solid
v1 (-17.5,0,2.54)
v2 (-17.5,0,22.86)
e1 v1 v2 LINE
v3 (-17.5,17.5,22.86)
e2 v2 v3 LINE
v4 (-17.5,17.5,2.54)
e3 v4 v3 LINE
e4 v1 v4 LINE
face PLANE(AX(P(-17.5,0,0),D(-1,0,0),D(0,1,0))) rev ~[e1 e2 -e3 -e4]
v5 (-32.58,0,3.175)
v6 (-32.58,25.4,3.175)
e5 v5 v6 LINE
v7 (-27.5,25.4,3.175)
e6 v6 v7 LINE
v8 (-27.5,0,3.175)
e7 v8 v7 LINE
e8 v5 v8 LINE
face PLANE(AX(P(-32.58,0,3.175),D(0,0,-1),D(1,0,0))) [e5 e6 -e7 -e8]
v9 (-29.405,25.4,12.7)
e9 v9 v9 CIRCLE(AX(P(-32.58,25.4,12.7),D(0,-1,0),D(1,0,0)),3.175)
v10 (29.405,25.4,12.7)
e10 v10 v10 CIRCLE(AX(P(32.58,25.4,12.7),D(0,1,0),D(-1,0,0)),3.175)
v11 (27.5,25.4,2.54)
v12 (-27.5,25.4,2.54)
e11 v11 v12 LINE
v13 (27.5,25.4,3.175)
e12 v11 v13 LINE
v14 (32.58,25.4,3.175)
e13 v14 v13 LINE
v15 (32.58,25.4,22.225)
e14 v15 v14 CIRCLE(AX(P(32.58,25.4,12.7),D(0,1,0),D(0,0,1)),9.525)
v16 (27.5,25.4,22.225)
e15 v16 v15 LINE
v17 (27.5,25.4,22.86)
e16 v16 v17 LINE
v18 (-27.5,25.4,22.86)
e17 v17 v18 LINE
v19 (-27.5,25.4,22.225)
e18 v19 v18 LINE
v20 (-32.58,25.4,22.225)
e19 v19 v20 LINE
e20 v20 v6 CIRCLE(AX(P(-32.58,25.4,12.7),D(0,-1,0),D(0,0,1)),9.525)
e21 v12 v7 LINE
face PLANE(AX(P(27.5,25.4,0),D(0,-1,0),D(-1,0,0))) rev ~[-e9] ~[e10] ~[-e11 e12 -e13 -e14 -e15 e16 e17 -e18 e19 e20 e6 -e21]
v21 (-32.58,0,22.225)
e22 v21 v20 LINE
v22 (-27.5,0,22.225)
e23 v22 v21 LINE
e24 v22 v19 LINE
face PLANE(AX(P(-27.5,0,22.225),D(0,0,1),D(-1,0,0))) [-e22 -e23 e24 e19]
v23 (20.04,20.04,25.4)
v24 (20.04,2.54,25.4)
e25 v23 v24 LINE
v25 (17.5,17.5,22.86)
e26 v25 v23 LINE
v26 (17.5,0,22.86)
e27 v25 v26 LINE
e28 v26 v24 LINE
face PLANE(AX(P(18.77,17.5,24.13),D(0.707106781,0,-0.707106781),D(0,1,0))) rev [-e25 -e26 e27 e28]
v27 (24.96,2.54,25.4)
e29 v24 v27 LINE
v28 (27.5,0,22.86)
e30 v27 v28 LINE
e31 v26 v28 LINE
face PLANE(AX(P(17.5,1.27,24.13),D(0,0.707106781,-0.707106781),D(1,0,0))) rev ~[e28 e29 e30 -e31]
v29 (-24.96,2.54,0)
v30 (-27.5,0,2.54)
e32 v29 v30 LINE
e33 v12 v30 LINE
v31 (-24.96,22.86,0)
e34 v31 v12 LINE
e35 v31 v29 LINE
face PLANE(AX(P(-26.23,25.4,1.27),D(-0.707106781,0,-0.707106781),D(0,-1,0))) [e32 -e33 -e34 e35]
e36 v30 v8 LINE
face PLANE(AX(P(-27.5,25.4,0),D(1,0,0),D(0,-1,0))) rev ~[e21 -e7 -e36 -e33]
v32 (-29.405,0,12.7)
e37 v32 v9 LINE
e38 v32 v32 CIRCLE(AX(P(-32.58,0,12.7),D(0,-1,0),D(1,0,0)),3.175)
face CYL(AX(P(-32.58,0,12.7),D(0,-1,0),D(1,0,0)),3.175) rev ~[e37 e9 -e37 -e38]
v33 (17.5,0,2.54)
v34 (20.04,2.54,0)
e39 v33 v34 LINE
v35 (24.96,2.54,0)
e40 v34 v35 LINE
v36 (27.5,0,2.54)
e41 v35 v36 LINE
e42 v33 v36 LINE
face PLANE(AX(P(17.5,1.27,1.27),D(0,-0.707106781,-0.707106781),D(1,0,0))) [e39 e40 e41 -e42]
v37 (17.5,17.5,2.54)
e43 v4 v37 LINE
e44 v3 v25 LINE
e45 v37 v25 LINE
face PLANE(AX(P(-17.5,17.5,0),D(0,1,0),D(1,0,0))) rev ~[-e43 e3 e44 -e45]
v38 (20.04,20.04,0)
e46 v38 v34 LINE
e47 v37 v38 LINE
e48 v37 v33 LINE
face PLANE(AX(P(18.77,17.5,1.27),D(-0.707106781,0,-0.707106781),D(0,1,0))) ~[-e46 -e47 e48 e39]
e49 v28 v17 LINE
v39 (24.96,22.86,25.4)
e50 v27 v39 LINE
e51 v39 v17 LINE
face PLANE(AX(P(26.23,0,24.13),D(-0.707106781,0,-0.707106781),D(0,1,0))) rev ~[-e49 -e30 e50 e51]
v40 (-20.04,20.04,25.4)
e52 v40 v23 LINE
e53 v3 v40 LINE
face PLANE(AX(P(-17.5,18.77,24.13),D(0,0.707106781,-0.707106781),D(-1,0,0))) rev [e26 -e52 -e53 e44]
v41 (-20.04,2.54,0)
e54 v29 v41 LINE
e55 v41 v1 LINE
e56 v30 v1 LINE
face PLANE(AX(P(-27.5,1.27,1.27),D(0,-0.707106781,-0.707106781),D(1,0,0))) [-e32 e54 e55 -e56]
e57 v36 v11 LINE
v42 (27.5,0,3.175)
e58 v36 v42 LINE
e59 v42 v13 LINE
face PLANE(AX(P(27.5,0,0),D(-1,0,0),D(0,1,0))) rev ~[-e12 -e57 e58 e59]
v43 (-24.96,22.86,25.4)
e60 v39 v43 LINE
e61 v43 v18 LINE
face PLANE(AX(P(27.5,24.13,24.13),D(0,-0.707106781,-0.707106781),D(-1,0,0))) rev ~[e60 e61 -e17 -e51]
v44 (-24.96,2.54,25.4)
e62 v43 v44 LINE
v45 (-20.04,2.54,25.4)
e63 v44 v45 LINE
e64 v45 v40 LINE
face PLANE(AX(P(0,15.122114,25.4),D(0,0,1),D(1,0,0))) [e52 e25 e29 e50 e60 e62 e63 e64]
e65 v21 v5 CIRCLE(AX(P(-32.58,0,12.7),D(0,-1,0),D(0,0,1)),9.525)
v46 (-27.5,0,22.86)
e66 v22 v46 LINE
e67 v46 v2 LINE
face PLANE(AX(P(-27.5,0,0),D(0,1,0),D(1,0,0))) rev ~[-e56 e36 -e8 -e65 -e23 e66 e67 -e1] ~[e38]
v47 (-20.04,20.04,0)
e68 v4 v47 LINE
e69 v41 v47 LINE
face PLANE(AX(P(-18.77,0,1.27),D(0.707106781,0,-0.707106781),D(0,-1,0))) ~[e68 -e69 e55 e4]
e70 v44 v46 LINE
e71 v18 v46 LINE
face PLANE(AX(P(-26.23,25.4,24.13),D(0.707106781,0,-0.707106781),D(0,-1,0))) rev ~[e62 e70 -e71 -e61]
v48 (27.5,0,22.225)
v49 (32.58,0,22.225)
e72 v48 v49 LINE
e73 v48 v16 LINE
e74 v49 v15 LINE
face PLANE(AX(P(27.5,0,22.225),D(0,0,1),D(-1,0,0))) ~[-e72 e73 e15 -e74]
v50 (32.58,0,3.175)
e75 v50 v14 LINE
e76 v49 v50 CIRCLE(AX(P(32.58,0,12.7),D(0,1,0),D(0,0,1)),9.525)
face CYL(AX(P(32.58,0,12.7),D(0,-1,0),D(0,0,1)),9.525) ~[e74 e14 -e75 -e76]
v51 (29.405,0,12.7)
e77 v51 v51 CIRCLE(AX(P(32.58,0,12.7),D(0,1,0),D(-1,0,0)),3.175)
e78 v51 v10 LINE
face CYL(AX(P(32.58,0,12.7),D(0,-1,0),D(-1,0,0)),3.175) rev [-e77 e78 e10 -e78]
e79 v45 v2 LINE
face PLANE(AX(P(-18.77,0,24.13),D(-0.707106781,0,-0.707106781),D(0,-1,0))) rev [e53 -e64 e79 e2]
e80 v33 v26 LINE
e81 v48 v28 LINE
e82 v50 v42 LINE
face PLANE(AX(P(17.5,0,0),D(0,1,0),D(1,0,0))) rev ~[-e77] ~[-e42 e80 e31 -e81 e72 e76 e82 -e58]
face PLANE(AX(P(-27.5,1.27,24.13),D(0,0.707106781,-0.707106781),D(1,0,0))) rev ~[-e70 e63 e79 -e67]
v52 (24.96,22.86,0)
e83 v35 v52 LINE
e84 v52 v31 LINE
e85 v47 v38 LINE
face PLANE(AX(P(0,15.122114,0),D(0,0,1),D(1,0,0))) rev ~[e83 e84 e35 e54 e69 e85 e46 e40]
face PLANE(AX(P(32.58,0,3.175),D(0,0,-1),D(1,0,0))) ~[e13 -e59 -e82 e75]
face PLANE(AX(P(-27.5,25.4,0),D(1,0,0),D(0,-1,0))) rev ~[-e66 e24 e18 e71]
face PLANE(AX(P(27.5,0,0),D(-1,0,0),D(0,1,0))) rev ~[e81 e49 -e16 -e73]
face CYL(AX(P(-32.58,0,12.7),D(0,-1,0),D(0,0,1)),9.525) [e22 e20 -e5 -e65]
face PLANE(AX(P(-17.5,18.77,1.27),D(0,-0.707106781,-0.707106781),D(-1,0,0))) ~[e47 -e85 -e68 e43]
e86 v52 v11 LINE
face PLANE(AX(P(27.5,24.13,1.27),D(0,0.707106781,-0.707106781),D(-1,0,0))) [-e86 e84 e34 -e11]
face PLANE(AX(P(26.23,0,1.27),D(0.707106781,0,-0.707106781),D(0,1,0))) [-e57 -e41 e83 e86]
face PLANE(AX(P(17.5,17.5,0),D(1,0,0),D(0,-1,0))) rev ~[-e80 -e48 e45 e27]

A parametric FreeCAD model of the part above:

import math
import FreeCAD as App
import Part
import Sketcher

V = App.Vector
Q = App.Units.Quantity


def edges_at(feature, points):
    """Names of the edges that pass closest to the given points."""
    edges = feature.Shape.Edges
    near = lambda p: min(range(len(edges)), key=lambda i: edges[i].distToShape(Part.Vertex(*p))[0])
    return sorted({f"Edge{near(p) + 1}" for p in points})

doc = App.newDocument("Part")
body = doc.addObject("PartDesign::Body", "Body")

# Sketch on XY plane
sketch1 = body.newObject("Sketcher::SketchObject", "Sketch")
sketch1.AttachmentSupport = (doc.getObject("XY_Plane"), [""])
sketch1.MapMode = "FlatFace"
sketch1.addGeometry([
    Part.LineSegment(V(-18, 18, 0), V(18, 18, 0)),  # 0
    Part.LineSegment(V(18, 18, 0), V(18, 0, 0)),  # 1
    Part.LineSegment(V(18, 0, 0), V(28, 0, 0)),  # 2
    Part.LineSegment(V(28, 0, 0), V(28, 25, 0)),  # 3
    Part.LineSegment(V(28, 25, 0), V(-28, 25, 0)),  # 4
    Part.LineSegment(V(-28, 25, 0), V(-28, 0, 0)),  # 5
    Part.LineSegment(V(-28, 0, 0), V(-18, 0, 0)),  # 6
    Part.LineSegment(V(-18, 0, 0), V(-18, 18, 0)),  # 7
], False)
sketch1.addConstraint([
    Sketcher.Constraint("Coincident", 0, 2, 1, 1),
    Sketcher.Constraint("Coincident", 1, 2, 2, 1),
    Sketcher.Constraint("Coincident", 2, 2, 3, 1),
    Sketcher.Constraint("Coincident", 3, 2, 4, 1),
    Sketcher.Constraint("Coincident", 4, 2, 5, 1),
    Sketcher.Constraint("Coincident", 5, 2, 6, 1),
    Sketcher.Constraint("Coincident", 6, 2, 7, 1),
    Sketcher.Constraint("Coincident", 7, 2, 0, 1),
    Sketcher.Constraint("Horizontal", 0),
    Sketcher.Constraint("Vertical", 1),
    Sketcher.Constraint("Horizontal", 2),
    Sketcher.Constraint("Vertical", 3),
    Sketcher.Constraint("Horizontal", 4),
    Sketcher.Constraint("Vertical", 5),
    Sketcher.Constraint("Horizontal", 6),
    Sketcher.Constraint("Vertical", 7),
    Sketcher.Constraint("Symmetric", 2, 2, 5, 2, -1, 1),
    Sketcher.Constraint("Symmetric", 1, 2, 6, 2, -2),
    Sketcher.Constraint("DistanceY", 3, 1, 3, 2, Q("1 in")),
    Sketcher.Constraint("DistanceX", 0, 1, 0, 2, Q("35 mm")),
    Sketcher.Constraint("DistanceX", 2, 1, 2, 2, Q("10 mm")),
    Sketcher.Constraint("DistanceY", 1, 2, 1, 1, Q("17.5 mm")),
])
pad1 = body.newObject("PartDesign::Pad", "Pad")
pad1.Profile = sketch1
pad1.Length = Q("1 in")

# Sketch on XZ plane
sketch2 = body.newObject("Sketcher::SketchObject", "Sketch001")
sketch2.AttachmentSupport = (doc.getObject("XZ_Plane"), [""])
sketch2.MapMode = "FlatFace"
sketch2.addGeometry([
    Part.LineSegment(V(-27.5, 3.2, 0), V(-27.5, 22.2, 0)),  # 0
    Part.LineSegment(V(-27.5, 22.2, 0), V(-32.6, 22.2, 0)),  # 1
    Part.ArcOfCircle(Part.Circle(V(-32.6, 12.7, 0), V(0, 0, 1), 9.5), math.radians(90), math.radians(270)),  # 2
    Part.LineSegment(V(-32.6, 3.2, 0), V(-27.5, 3.2, 0)),  # 3
    Part.Circle(V(-32.6, 12.7, 0), V(0, 0, 1), 3.2),  # 4
], False)
sketch2.addConstraint([
    Sketcher.Constraint("Coincident", 0, 2, 1, 1),
    Sketcher.Constraint("Tangent", 1, 2, 2, 1),
    Sketcher.Constraint("Tangent", 2, 2, 3, 1),
    Sketcher.Constraint("Coincident", 3, 2, 0, 1),
    Sketcher.Constraint("Vertical", 0),
    Sketcher.Constraint("Horizontal", 1),
    Sketcher.Constraint("Horizontal", 3),
    Sketcher.Constraint("Coincident", 4, 3, 2, 3),
    Sketcher.Constraint("Diameter", 4, Q("0.25 in")),
    Sketcher.Constraint("DistanceX", 1, 2, 1, 1, Q("0.2 in")),
    Sketcher.Constraint("Radius", 2, Q("0.375 in")),
    Sketcher.Constraint("DistanceY", -1, 1, 2, 3, Q("0.5 in")),
    Sketcher.Constraint("DistanceX", 2, 3, -1, 1, Q("32.58 mm")),
])
pad2 = body.newObject("PartDesign::Pad", "Pad001")
pad2.Profile = sketch2
pad2.Length = Q("1 in")
pad2.Reversed = True
doc.recompute()

chamfer = body.newObject("PartDesign::Chamfer", "Chamfer")
chamfer.Base = (pad2, edges_at(pad2, [
    (0, 17.5, 0),
    (17.5, 8.75, 0),
    (22.5, 0, 0),
    (27.5, 12.7, 0),
    (0, 25.4, 0),
    (-27.5, 12.7, 0),
    (-22.5, 0, 0),
    (-17.5, 8.75, 0),
    (0, 17.5, 25.4),
    (17.5, 8.75, 25.4),
    (22.5, 0, 25.4),
    (27.5, 12.7, 25.4),
    (0, 25.4, 25.4),
    (-27.5, 12.7, 25.4),
    (-22.5, 0, 25.4),
    (-17.5, 8.75, 25.4),
]))
chamfer.Size = Q("0.1 in")
body2 = doc.addObject("PartDesign::Body", "Body001")
doc.recompute()

body2.BaseFeature = body
doc.recompute()

mirroring = doc.addObject("Part::Mirroring", "Mirroring")
mirroring.Source = body
mirroring.Base = V(0, 0, 0)
mirroring.Normal = V(1, 0, 0)
body3 = doc.addObject("PartDesign::Body", "Body002")
body3.BaseFeature = mirroring
boolean = body2.newObject("PartDesign::Boolean", "Boolean")
boolean.Type = "Fuse"
boolean.addObjects([body3])
doc.recompute()
mirroring.Visibility = False

doc.recompute()
